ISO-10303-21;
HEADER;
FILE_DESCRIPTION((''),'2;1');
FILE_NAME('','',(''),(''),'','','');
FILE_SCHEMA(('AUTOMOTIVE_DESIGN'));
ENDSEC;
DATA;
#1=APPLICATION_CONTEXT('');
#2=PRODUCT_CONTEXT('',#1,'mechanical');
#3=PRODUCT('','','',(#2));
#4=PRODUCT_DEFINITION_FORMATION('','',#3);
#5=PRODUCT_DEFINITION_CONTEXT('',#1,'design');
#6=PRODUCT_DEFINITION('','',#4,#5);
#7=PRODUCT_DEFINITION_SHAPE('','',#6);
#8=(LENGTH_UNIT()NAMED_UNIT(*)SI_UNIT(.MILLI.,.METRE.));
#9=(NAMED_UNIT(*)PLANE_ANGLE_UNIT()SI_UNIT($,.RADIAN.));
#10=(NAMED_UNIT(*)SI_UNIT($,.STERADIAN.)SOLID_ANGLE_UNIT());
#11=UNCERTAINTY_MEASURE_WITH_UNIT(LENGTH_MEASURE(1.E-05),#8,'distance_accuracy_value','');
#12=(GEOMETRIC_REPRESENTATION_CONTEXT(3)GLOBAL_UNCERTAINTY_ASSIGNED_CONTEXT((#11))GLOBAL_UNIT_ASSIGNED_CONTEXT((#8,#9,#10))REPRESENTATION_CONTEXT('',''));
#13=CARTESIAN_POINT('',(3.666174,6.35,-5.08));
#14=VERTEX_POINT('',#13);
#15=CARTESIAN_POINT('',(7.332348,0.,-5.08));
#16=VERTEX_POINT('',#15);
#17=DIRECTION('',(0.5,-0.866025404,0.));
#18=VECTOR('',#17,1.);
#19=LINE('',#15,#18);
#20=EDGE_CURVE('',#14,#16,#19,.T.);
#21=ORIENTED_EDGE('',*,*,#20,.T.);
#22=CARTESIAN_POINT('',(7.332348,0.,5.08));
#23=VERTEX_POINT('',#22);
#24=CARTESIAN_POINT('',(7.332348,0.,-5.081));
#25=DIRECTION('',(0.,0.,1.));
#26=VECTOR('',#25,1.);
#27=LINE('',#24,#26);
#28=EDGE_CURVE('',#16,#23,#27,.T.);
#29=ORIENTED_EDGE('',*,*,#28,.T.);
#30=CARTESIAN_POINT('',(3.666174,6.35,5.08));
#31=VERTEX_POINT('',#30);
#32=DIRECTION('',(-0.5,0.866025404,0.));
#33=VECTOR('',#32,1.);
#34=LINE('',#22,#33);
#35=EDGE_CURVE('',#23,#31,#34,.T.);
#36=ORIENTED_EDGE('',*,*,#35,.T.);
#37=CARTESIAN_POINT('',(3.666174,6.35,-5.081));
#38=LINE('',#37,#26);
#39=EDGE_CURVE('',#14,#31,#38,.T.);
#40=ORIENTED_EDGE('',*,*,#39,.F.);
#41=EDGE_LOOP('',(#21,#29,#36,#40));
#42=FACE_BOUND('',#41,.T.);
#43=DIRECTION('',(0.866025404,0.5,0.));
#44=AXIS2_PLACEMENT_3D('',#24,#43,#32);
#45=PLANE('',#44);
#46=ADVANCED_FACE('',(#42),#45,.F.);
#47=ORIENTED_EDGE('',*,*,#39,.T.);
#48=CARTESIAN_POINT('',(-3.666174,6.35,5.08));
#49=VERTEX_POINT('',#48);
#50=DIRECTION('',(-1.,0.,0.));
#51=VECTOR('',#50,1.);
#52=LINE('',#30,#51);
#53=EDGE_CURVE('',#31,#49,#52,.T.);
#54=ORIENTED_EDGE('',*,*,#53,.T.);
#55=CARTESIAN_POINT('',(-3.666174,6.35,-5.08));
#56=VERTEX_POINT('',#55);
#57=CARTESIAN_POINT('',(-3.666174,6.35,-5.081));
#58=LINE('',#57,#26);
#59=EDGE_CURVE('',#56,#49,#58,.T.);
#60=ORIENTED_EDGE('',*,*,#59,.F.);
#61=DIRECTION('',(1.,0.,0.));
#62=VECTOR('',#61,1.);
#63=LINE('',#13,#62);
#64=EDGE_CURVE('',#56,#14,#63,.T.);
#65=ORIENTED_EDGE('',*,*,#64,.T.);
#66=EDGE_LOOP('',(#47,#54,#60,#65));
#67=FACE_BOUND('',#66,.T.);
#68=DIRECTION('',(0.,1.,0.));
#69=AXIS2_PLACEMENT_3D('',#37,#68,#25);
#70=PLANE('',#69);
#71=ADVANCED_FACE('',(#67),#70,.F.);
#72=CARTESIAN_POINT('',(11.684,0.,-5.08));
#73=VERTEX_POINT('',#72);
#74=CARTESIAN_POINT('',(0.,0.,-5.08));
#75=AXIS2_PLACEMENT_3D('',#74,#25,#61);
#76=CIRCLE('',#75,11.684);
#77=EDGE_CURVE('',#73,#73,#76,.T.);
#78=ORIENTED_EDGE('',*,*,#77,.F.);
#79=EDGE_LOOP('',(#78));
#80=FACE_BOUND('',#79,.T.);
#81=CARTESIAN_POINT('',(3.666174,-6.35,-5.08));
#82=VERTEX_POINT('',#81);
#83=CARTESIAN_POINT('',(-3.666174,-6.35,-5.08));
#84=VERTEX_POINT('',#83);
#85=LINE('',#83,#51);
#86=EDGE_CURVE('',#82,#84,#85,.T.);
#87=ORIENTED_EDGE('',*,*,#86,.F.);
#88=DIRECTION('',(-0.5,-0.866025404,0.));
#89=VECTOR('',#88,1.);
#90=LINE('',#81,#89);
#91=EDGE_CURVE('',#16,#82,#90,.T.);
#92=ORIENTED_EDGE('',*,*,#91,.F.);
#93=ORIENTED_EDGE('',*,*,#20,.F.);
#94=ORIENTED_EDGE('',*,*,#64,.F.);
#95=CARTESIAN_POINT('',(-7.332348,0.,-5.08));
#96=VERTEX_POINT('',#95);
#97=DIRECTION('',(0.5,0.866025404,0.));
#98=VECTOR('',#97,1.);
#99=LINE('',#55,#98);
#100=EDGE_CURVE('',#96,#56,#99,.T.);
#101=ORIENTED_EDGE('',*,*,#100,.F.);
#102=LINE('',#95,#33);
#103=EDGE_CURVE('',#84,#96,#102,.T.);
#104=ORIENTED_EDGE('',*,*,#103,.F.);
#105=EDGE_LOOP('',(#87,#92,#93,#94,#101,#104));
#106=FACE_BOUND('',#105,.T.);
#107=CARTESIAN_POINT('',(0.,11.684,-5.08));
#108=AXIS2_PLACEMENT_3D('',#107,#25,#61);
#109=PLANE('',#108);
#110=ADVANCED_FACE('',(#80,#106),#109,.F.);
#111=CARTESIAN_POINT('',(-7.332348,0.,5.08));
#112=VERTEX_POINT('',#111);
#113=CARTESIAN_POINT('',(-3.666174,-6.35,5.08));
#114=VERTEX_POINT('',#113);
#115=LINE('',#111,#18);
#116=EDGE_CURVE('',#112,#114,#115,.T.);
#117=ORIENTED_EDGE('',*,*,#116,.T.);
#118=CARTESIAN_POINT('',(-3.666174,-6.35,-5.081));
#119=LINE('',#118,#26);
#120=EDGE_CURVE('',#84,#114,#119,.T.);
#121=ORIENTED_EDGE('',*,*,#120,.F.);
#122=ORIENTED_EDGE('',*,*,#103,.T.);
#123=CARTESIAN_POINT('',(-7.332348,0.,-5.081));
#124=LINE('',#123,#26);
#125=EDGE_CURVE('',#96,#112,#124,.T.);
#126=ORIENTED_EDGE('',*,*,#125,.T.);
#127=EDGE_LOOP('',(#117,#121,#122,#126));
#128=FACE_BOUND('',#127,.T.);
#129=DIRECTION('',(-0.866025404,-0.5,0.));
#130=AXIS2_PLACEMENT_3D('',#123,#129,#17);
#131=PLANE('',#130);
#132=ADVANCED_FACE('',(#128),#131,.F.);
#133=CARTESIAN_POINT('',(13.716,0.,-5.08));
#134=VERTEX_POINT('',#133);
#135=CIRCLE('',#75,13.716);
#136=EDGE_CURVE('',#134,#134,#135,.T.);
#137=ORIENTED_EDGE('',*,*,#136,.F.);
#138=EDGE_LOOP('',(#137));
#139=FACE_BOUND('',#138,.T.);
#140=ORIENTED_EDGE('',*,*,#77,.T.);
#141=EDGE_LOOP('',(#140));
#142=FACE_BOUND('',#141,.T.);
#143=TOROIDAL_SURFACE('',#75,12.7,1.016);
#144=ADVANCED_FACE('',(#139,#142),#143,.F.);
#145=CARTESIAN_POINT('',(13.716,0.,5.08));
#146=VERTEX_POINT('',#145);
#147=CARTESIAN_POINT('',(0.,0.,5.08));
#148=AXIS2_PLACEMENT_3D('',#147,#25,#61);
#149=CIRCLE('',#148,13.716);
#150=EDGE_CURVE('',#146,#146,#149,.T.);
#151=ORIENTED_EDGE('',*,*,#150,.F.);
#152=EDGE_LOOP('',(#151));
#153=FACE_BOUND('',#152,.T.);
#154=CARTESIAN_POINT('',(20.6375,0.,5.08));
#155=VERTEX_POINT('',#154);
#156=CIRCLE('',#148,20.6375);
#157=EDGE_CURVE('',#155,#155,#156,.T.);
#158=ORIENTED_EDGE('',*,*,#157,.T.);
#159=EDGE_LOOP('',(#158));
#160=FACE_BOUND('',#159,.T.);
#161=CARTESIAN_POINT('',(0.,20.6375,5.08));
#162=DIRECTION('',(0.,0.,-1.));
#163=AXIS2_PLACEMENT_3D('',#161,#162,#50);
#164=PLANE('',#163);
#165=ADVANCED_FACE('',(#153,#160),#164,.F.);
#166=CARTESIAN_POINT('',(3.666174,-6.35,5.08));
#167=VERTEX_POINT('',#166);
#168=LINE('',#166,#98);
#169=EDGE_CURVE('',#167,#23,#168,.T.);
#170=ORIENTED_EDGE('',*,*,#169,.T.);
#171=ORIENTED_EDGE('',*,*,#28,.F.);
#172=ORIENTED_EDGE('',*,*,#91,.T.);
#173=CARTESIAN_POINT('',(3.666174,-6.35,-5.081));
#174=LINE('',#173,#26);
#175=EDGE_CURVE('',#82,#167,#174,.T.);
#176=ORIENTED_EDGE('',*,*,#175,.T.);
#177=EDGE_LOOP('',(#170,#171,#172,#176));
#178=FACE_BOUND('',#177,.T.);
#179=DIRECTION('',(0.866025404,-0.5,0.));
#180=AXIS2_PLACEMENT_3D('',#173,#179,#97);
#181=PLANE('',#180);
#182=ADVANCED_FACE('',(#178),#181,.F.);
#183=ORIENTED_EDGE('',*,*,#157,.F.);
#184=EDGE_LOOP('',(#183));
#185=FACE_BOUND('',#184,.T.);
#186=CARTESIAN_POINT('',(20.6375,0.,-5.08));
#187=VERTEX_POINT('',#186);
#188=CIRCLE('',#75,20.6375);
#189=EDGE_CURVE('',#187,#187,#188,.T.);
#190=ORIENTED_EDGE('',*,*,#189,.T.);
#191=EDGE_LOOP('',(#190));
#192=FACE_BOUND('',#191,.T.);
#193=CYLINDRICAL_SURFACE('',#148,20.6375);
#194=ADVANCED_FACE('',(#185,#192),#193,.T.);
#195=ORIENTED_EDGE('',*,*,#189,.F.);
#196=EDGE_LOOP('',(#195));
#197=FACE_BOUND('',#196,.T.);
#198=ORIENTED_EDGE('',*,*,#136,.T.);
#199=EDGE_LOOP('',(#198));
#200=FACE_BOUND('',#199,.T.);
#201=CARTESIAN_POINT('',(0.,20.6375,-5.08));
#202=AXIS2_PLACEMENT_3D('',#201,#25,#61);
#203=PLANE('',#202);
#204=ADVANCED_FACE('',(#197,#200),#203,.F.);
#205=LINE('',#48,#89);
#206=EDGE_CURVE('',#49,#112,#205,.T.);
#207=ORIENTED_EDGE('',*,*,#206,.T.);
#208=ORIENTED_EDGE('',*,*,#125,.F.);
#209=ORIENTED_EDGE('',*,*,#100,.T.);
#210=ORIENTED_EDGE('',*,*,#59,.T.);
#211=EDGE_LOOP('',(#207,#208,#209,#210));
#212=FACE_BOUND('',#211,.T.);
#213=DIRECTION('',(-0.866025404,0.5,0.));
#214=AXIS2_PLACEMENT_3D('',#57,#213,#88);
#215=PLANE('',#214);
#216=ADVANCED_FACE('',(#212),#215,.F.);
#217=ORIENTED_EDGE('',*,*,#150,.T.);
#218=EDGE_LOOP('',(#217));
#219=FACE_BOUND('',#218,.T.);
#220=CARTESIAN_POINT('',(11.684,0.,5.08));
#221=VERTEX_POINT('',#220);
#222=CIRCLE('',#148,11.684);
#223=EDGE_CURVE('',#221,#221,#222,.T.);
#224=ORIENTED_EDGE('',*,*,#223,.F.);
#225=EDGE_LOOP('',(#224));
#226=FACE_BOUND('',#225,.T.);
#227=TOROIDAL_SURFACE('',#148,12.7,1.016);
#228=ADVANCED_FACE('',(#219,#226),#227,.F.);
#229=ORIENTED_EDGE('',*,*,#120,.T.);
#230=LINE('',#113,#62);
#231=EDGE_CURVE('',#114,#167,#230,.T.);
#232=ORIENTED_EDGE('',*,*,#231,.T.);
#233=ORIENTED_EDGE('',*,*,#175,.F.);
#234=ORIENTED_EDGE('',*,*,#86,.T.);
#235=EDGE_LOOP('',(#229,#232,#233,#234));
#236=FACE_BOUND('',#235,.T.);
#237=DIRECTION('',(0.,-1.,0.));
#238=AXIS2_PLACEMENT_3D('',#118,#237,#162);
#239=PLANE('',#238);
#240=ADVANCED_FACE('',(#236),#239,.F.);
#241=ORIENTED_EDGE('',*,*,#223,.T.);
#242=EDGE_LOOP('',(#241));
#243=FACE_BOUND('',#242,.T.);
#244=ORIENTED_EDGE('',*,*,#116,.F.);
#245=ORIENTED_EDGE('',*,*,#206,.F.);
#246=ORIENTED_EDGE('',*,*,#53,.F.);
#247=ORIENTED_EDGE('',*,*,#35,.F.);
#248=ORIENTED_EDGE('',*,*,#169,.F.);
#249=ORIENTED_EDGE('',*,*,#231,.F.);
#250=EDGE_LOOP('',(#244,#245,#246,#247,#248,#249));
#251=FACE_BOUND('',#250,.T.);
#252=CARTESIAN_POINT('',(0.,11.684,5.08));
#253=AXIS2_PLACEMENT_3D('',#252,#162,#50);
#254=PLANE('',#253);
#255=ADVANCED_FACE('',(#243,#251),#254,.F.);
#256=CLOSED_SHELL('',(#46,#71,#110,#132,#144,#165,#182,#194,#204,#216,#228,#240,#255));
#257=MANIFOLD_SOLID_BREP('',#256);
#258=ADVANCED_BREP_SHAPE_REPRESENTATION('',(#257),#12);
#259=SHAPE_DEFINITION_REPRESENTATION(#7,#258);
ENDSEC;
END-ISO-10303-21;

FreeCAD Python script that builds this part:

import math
import FreeCAD as App
import Part
import Sketcher

V = App.Vector
Q = App.Units.Quantity


def add_polygon(sketch, points):
    """Adds a closed chain of lines whose ends are joined by coincident constraints."""
    first, n = sketch.GeometryCount, len(points)
    for a, b in zip(points, points[1:] + points[:1]):
        sketch.addGeometry(Part.LineSegment(App.Vector(*a, 0), App.Vector(*b, 0)), False)
    for i in range(n):
        sketch.addConstraint(Sketcher.Constraint("Coincident", first + i, 2, first + (i + 1) % n, 1))

doc = App.newDocument("Part")
body = doc.addObject("PartDesign::Body", "Body")

sketch1 = body.newObject("Sketcher::SketchObject", "Sketch")
sketch1.AttachmentSupport = (doc.getObject("YZ_Plane"), [""])
sketch1.MapMode = "FlatFace"
sketch1.addGeometry(Part.LineSegment(V(20.6, -5.1, 0), V(20.6, 5.1, 0)), False)
sketch1.addGeometry(Part.LineSegment(V(20.6, 5.1, 0), V(13.7, 5.1, 0)), False)
sketch1.addGeometry(Part.ArcOfCircle(Part.Circle(V(12.7, 5.1, 0), V(0, 0, 1), 1), math.radians(180), math.radians(360)), False)
sketch1.addGeometry(Part.LineSegment(V(11.7, 5.1, 0), V(0, 5.1, 0)), False)
sketch1.addGeometry(Part.LineSegment(V(0, 5.1, 0), V(0, -5.1, 0)), False)
sketch1.addGeometry(Part.LineSegment(V(0, -5.1, 0), V(11.7, -5.1, 0)), False)
sketch1.addGeometry(Part.ArcOfCircle(Part.Circle(V(12.7, -5.1, 0), V(0, 0, 1), 1), math.radians(0), math.radians(180)), False)
sketch1.addGeometry(Part.LineSegment(V(13.7, -5.1, 0), V(20.6, -5.1, 0)), False)
sketch1.addConstraint(Sketcher.Constraint("Coincident", 0, 2, 1, 1))
sketch1.addConstraint(Sketcher.Constraint("Coincident", 1, 2, 2, 2))
sketch1.addConstraint(Sketcher.Constraint("Coincident", 2, 1, 3, 1))
sketch1.addConstraint(Sketcher.Constraint("Coincident", 3, 2, 4, 1))
sketch1.addConstraint(Sketcher.Constraint("Coincident", 4, 2, 5, 1))
sketch1.addConstraint(Sketcher.Constraint("Coincident", 5, 2, 6, 2))
sketch1.addConstraint(Sketcher.Constraint("Coincident", 6, 1, 7, 1))
sketch1.addConstraint(Sketcher.Constraint("Coincident", 7, 2, 0, 1))
sketch1.addConstraint(Sketcher.Constraint("Vertical", 0))
sketch1.addConstraint(Sketcher.Constraint("Horizontal", 1))
sketch1.addConstraint(Sketcher.Constraint("Horizontal", 3))
sketch1.addConstraint(Sketcher.Constraint("Vertical", 4))
sketch1.addConstraint(Sketcher.Constraint("Horizontal", 5))
sketch1.addConstraint(Sketcher.Constraint("Horizontal", 7))
sketch1.addConstraint(Sketcher.Constraint("Equal", 2, 6))
sketch1.addConstraint(Sketcher.Constraint("Symmetric", 3, 2, 4, 2, -1, 1))
sketch1.addConstraint(Sketcher.Constraint("Symmetric", 2, 3, 6, 3, -1))
sketch1.addConstraint(Sketcher.Constraint("Horizontal", 2, 3, 0, 2))
sketch1.addConstraint(Sketcher.Constraint("Horizontal", 1, 2, 2, 1))
sketch1.addConstraint(Sketcher.Constraint("Horizontal", 5, 2, 6, 1))
sketch1.addConstraint(Sketcher.Constraint("Radius", 2, Q("0.04 in")))
sketch1.addConstraint(Sketcher.Constraint("DistanceY", 0, 1, 0, 2, Q("0.4 in")))
sketch1.addConstraint(Sketcher.Constraint("DistanceX", 3, 2, 3, 1, Q("0.46 in")))
sketch1.addConstraint(Sketcher.Constraint("DistanceX", 1, 2, 1, 1, Q("0.2725 in")))
revolution = body.newObject("PartDesign::Revolution", "Revolution")
revolution.Profile = sketch1
revolution.ReferenceAxis = (sketch1, ["V_Axis"])
revolution.Angle = 360

sketch2 = body.newObject("Sketcher::SketchObject", "Sketch001")
sketch2.AttachmentSupport = (doc.getObject("XY_Plane"), [""])
sketch2.MapMode = "FlatFace"
sketch2.AttachmentOffset = App.Placement(V(0, 0, 0.2 * 25.4), App.Rotation())
add_polygon(sketch2, [(-4, 6), (-7, 0), (-4, -6), (4, -6), (7, 0), (4, 6)])
sketch2.addConstraint(Sketcher.Constraint("Horizontal", 2))
sketch2.addConstraint(Sketcher.Constraint("Horizontal", 5))
sketch2.addConstraint(Sketcher.Constraint("Symmetric", 0, 2, 3, 2, -1, 1))
sketch2.addConstraint(Sketcher.Constraint("Symmetric", 1, 2, 4, 2, -1, 1))
sketch2.addConstraint(Sketcher.Constraint("PointOnObject", 0, 2, -1))
sketch2.addConstraint(Sketcher.Constraint("Parallel", 0, 3))
sketch2.addConstraint(Sketcher.Constraint("Vertical", 2, 2, 4, 2))
sketch2.addConstraint(Sketcher.Constraint("Angle", 0, Q("-120 deg")))
sketch2.addConstraint(Sketcher.Constraint("DistanceY", 2, 2, 4, 2, Q("0.5 in")))
sketch2.addConstraint(Sketcher.Constraint("DistanceX", 2, 1, 2, 2, Q("7.332348 mm")))
pocket1 = body.newObject("PartDesign::Pocket", "Pocket")
pocket1.Profile = sketch2
pocket1.Type = "UpToFirst"

doc.recompute()
